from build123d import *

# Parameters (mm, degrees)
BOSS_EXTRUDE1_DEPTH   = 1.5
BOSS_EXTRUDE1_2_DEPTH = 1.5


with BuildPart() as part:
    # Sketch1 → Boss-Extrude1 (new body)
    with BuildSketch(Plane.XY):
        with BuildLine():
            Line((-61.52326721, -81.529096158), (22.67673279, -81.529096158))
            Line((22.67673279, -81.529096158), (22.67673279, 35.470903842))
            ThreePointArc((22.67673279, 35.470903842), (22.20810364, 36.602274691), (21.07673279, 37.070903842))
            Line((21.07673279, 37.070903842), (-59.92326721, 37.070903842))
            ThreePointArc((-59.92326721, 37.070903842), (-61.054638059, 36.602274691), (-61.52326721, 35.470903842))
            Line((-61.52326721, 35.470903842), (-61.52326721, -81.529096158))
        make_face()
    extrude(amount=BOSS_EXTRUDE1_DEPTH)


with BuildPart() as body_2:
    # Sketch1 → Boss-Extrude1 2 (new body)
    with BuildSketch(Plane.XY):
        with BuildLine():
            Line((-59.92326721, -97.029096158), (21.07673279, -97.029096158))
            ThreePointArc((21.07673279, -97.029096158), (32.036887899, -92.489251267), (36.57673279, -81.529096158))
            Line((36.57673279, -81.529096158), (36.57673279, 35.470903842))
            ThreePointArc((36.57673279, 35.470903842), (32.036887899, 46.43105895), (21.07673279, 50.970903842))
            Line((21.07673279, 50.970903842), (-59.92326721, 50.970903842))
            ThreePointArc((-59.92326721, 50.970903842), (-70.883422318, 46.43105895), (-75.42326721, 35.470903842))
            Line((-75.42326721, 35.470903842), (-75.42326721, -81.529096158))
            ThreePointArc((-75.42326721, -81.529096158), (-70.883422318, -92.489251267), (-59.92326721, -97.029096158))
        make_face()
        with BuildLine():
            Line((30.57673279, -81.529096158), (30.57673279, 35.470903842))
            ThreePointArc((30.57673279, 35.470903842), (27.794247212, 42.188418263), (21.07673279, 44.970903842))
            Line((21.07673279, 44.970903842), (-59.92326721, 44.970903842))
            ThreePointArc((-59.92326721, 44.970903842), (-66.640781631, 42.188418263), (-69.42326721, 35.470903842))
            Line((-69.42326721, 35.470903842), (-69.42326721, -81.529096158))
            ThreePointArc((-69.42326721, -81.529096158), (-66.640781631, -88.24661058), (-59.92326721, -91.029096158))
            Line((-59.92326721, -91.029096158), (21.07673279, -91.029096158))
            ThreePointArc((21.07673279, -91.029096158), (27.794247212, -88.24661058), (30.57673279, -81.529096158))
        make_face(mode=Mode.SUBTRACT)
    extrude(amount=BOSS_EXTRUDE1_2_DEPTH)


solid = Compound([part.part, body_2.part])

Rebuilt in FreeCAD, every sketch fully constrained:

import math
import FreeCAD as App
import Part
import Sketcher
from FreeCAD import Vector

doc = App.newDocument("Part")
params = doc.addObject("Spreadsheet::Sheet", "Params")
for row, (alias, value) in enumerate([
    ("sketch1_radius", "1.6 mm"),
    ("sketch1_width", "81 mm"),
    ("sketch1_height", "117 mm"),
    ("pad1_length", "1.5 mm"),
    ("sketch2_radius", "15.5 mm"),
    ("sketch2_radius2", "9.5 mm"),
    ("sketch2_width", "81 mm"),
    ("sketch2_height", "117 mm"),
    ("pad2_length", "1.5 mm"),
], start=1):
    params.set(f"A{row}", alias)
    params.set(f"B{row}", "=" + value)
    params.setAlias(f"B{row}", alias)

body = doc.addObject("PartDesign::Body", "Body")

sketch1 = body.newObject("Sketcher::SketchObject", "Sketch")
sketch1.AttachmentSupport = (doc.getObject("XY_Plane"), [""])
sketch1.MapMode = "FlatFace"
sketch1.addGeometry(Part.LineSegment(Vector(-61.5, -81.5, 0), Vector(22.7, -81.5, 0)), False)
sketch1.addGeometry(Part.LineSegment(Vector(22.7, -81.5, 0), Vector(22.7, 35.5, 0)), False)
sketch1.addGeometry(Part.ArcOfCircle(Part.Circle(Vector(21.1, 35.5, 0), Vector(0, 0, 1), 1.6), math.radians(0), math.radians(90)), False)
sketch1.addGeometry(Part.LineSegment(Vector(21.1, 37.1, 0), Vector(-59.9, 37.1, 0)), False)
sketch1.addGeometry(Part.ArcOfCircle(Part.Circle(Vector(-59.9, 35.5, 0), Vector(0, 0, 1), 1.6), math.radians(90), math.radians(180)), False)
sketch1.addGeometry(Part.LineSegment(Vector(-61.5, 35.5, 0), Vector(-61.5, -81.5, 0)), False)
sketch1.addConstraint(Sketcher.Constraint("Coincident", 0, 2, 1, 1))
sketch1.addConstraint(Sketcher.Constraint("Tangent", 1, 2, 2, 1))
sketch1.addConstraint(Sketcher.Constraint("Tangent", 2, 2, 3, 1))
sketch1.addConstraint(Sketcher.Constraint("Tangent", 3, 2, 4, 1))
sketch1.addConstraint(Sketcher.Constraint("Tangent", 4, 2, 5, 1))
sketch1.addConstraint(Sketcher.Constraint("Coincident", 5, 2, 0, 1))
sketch1.addConstraint(Sketcher.Constraint("Horizontal", 0))
sketch1.addConstraint(Sketcher.Constraint("Vertical", 1))
sketch1.addConstraint(Sketcher.Constraint("Horizontal", 3))
sketch1.addConstraint(Sketcher.Constraint("Vertical", 5))
sketch1.addConstraint(Sketcher.Constraint("Equal", 2, 4))
sketch1.addConstraint(Sketcher.Constraint("Radius", 2, 1.6))
sketch1.addConstraint(Sketcher.Constraint("DistanceX", 3, 2, 3, 1, 81.0))
sketch1.addConstraint(Sketcher.Constraint("DistanceY", 1, 1, 1, 2, 117.0))
sketch1.addConstraint(Sketcher.Constraint("DistanceX", -1, 1, 2, 3, 21.076733))
sketch1.addConstraint(Sketcher.Constraint("DistanceY", -1, 1, 2, 3, 35.470904))
sketch1.setExpression("Constraints[11]", "Params.sketch1_radius")
sketch1.setExpression("Constraints[12]", "Params.sketch1_width")
sketch1.setExpression("Constraints[13]", "Params.sketch1_height")
pad1 = body.newObject("PartDesign::Pad", "Pad")
pad1.Profile = sketch1
pad1.setExpression("Length", "Params.pad1_length")
body2 = doc.addObject("PartDesign::Body", "Body001")

sketch2 = body2.newObject("Sketcher::SketchObject", "Sketch001")
sketch2.AttachmentSupport = (doc.getObject("XY_Plane001"), [""])
sketch2.MapMode = "FlatFace"
sketch2.addGeometry(Part.LineSegment(Vector(-60, -97, 0), Vector(21, -97, 0)), False)
sketch2.addGeometry(Part.ArcOfCircle(Part.Circle(Vector(21, -82, 0), Vector(0, 0, 1), 15), math.radians(-90), math.radians(0)), False)
sketch2.addGeometry(Part.LineSegment(Vector(37, -82, 0), Vector(37, 35, 0)), False)
sketch2.addGeometry(Part.ArcOfCircle(Part.Circle(Vector(21, 35, 0), Vector(0, 0, 1), 16), math.radians(0), math.radians(90)), False)
sketch2.addGeometry(Part.LineSegment(Vector(21, 51, 0), Vector(-60, 51, 0)), False)
sketch2.addGeometry(Part.ArcOfCircle(Part.Circle(Vector(-60, 35, 0), Vector(0, 0, 1), 16), math.radians(90), math.radians(180)), False)
sketch2.addGeometry(Part.LineSegment(Vector(-75, 35, 0), Vector(-75, -82, 0)), False)
sketch2.addGeometry(Part.ArcOfCircle(Part.Circle(Vector(-60, -82, 0), Vector(0, 0, 1), 16), math.radians(180), math.radians(270)), False)
sketch2.addGeometry(Part.LineSegment(Vector(31, 35, 0), Vector(31, -82, 0)), False)
sketch2.addGeometry(Part.ArcOfCircle(Part.Circle(Vector(21, -82, 0), Vector(0, 0, 1), 9), math.radians(-90), math.radians(0)), False)
sketch2.addGeometry(Part.LineSegment(Vector(21, -91, 0), Vector(-60, -91, 0)), False)
sketch2.addGeometry(Part.ArcOfCircle(Part.Circle(Vector(-60, -82, 0), Vector(0, 0, 1), 9), math.radians(180), math.radians(270)), False)
sketch2.addGeometry(Part.LineSegment(Vector(-69, -82, 0), Vector(-69, 35, 0)), False)
sketch2.addGeometry(Part.ArcOfCircle(Part.Circle(Vector(-60, 35, 0), Vector(0, 0, 1), 10), math.radians(90), math.radians(180)), False)
sketch2.addGeometry(Part.LineSegment(Vector(-60, 45, 0), Vector(21, 45, 0)), False)
sketch2.addGeometry(Part.ArcOfCircle(Part.Circle(Vector(21, 35, 0), Vector(0, 0, 1), 9), math.radians(0), math.radians(90)), False)
sketch2.addConstraint(Sketcher.Constraint("Tangent", 0, 2, 1, 1))
sketch2.addConstraint(Sketcher.Constraint("Tangent", 1, 2, 2, 1))
sketch2.addConstraint(Sketcher.Constraint("Tangent", 2, 2, 3, 1))
sketch2.addConstraint(Sketcher.Constraint("Tangent", 3, 2, 4, 1))
sketch2.addConstraint(Sketcher.Constraint("Tangent", 4, 2, 5, 1))
sketch2.addConstraint(Sketcher.Constraint("Tangent", 5, 2, 6, 1))
sketch2.addConstraint(Sketcher.Constraint("Tangent", 6, 2, 7, 1))
sketch2.addConstraint(Sketcher.Constraint("Tangent", 7, 2, 0, 1))
sketch2.addConstraint(Sketcher.Constraint("Tangent", 8, 2, 9, 2))
sketch2.addConstraint(Sketcher.Constraint("Tangent", 9, 1, 10, 1))
sketch2.addConstraint(Sketcher.Constraint("Tangent", 10, 2, 11, 2))
sketch2.addConstraint(Sketcher.Constraint("Tangent", 11, 1, 12, 1))
sketch2.addConstraint(Sketcher.Constraint("Tangent", 12, 2, 13, 2))
sketch2.addConstraint(Sketcher.Constraint("Tangent", 13, 1, 14, 1))
sketch2.addConstraint(Sketcher.Constraint("Tangent", 14, 2, 15, 2))
sketch2.addConstraint(Sketcher.Constraint("Tangent", 15, 1, 8, 1))
sketch2.addConstraint(Sketcher.Constraint("Horizontal", 0))
sketch2.addConstraint(Sketcher.Constraint("Vertical", 2))
sketch2.addConstraint(Sketcher.Constraint("Horizontal", 4))
sketch2.addConstraint(Sketcher.Constraint("Vertical", 6))
sketch2.addConstraint(Sketcher.Constraint("Vertical", 8))
sketch2.addConstraint(Sketcher.Constraint("Horizontal", 10))
sketch2.addConstraint(Sketcher.Constraint("Vertical", 12))
sketch2.addConstraint(Sketcher.Constraint("Horizontal", 14))
sketch2.addConstraint(Sketcher.Constraint("Coincident", 9, 3, 1, 3))
sketch2.addConstraint(Sketcher.Constraint("Coincident", 11, 3, 7, 3))
sketch2.addConstraint(Sketcher.Constraint("Coincident", 13, 3, 5, 3))
sketch2.addConstraint(Sketcher.Constraint("Equal", 1, 3))
sketch2.addConstraint(Sketcher.Constraint("Equal", 3, 5))
sketch2.addConstraint(Sketcher.Constraint("Equal", 5, 7))
sketch2.addConstraint(Sketcher.Constraint("Equal", 13, 15))
sketch2.addConstraint(Sketcher.Constraint("Radius", 1, 15.5))
sketch2.addConstraint(Sketcher.Constraint("Radius", 9, 9.5))
sketch2.addConstraint(Sketcher.Constraint("DistanceX", 0, 1, 0, 2, 81.0))
sketch2.addConstraint(Sketcher.Constraint("DistanceY", 2, 1, 2, 2, 117.0))
sketch2.addConstraint(Sketcher.Constraint("DistanceX", -1, 1, 1, 3, 21.076733))
sketch2.addConstraint(Sketcher.Constraint("DistanceY", 1, 3, -1, 1, 81.529096))
sketch2.setExpression("Constraints[31]", "Params.sketch2_radius")
sketch2.setExpression("Constraints[32]", "Params.sketch2_radius2")
sketch2.setExpression("Constraints[33]", "Params.sketch2_width")
sketch2.setExpression("Constraints[34]", "Params.sketch2_height")
pad2 = body2.newObject("PartDesign::Pad", "Pad001")
pad2.Profile = sketch2
pad2.setExpression("Length", "Params.pad2_length")

doc.recompute()
